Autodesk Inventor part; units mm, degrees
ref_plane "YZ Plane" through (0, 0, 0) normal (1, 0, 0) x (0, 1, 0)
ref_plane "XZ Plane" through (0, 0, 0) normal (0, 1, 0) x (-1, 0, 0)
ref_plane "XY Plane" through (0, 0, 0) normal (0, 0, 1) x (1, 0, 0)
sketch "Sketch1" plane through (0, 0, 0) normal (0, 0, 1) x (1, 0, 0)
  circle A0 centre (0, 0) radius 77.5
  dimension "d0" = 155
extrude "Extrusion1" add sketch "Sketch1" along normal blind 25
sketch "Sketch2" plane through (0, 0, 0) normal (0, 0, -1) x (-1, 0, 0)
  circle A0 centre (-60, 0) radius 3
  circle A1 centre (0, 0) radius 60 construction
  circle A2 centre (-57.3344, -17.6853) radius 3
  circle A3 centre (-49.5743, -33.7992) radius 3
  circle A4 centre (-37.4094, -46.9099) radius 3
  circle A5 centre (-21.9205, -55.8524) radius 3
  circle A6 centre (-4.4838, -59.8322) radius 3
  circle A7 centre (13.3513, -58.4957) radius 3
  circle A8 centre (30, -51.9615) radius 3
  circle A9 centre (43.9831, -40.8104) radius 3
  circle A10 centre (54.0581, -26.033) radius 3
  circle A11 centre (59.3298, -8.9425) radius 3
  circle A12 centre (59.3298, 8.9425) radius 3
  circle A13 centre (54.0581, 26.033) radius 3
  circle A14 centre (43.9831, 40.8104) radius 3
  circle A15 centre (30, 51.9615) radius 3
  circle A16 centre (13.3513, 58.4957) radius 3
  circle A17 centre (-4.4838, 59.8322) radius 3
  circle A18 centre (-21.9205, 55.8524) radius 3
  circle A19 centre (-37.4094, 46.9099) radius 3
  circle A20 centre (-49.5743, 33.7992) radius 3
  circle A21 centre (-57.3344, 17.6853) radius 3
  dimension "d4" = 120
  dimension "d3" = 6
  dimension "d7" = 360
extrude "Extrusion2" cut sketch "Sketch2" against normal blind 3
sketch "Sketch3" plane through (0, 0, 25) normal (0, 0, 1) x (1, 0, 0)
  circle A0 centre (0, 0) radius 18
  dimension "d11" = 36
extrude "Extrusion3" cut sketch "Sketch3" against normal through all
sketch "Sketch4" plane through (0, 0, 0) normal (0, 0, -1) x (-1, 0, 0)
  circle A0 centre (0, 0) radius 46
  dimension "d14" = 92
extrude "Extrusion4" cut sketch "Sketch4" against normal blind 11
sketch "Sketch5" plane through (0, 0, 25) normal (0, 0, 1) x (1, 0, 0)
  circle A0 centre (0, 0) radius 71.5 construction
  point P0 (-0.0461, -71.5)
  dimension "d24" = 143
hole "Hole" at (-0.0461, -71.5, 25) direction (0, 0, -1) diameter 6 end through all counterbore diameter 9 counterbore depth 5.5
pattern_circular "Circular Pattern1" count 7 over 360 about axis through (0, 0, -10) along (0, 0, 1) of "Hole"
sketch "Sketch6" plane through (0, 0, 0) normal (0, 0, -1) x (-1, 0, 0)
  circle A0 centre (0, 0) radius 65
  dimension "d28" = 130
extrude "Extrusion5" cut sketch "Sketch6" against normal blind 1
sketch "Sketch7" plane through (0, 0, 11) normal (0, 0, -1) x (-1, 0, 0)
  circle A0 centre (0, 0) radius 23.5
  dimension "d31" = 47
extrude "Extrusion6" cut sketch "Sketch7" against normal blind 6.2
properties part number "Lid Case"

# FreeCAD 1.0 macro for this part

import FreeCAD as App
import Part
import Sketcher

V = App.Vector

doc = App.newDocument("Part")
body = doc.addObject("PartDesign::Body", "Body")

# Sketch on XY plane
sketch1 = body.newObject("Sketcher::SketchObject", "Sketch")
sketch1.AttachmentSupport = (doc.getObject("XY_Plane"), [""])
sketch1.MapMode = "FlatFace"
sketch1.addGeometry(Part.Circle(V(0, 0, 0), V(0, 0, 1), 77.5), False)
sketch1.addConstraint([
    Sketcher.Constraint("Coincident", 0, 3, -1, 1),
    Sketcher.Constraint("Diameter", 0, 155.0),
])
pad1 = body.newObject("PartDesign::Pad", "Pad")
pad1.Profile = sketch1
pad1.Length = 25

# Sketch on XY plane
sketch2 = body.newObject("Sketcher::SketchObject", "Sketch001")
sketch2.AttachmentSupport = (doc.getObject("XY_Plane"), [""])
sketch2.MapMode = "FlatFace"
sketch2.addGeometry([
    Part.Circle(V(60, 0, 0), V(0, 0, 1), 3),  # 0
    Part.Circle(V(57.3344, -17.6853, 0), V(0, 0, 1), 3),  # 1
    Part.Circle(V(49.5743, -33.7992, 0), V(0, 0, 1), 3),  # 2
    Part.Circle(V(37.4094, -46.9099, 0), V(0, 0, 1), 3),  # 3
    Part.Circle(V(21.9205, -55.8524, 0), V(0, 0, 1), 3),  # 4
    Part.Circle(V(4.4838, -59.8322, 0), V(0, 0, 1), 3),  # 5
    Part.Circle(V(-13.3513, -58.4957, 0), V(0, 0, 1), 3),  # 6
    Part.Circle(V(-30, -51.9615, 0), V(0, 0, 1), 3),  # 7
    Part.Circle(V(-43.9831, -40.8104, 0), V(0, 0, 1), 3),  # 8
    Part.Circle(V(-54.0581, -26.033, 0), V(0, 0, 1), 3),  # 9
    Part.Circle(V(-59.3298, -8.9425, 0), V(0, 0, 1), 3),  # 10
    Part.Circle(V(-59.3298, 8.9425, 0), V(0, 0, 1), 3),  # 11
    Part.Circle(V(-54.0581, 26.033, 0), V(0, 0, 1), 3),  # 12
    Part.Circle(V(-43.9831, 40.8104, 0), V(0, 0, 1), 3),  # 13
    Part.Circle(V(-30, 51.9615, 0), V(0, 0, 1), 3),  # 14
    Part.Circle(V(-13.3513, 58.4957, 0), V(0, 0, 1), 3),  # 15
    Part.Circle(V(4.4838, 59.8322, 0), V(0, 0, 1), 3),  # 16
    Part.Circle(V(21.9205, 55.8524, 0), V(0, 0, 1), 3),  # 17
    Part.Circle(V(37.4094, 46.9099, 0), V(0, 0, 1), 3),  # 18
    Part.Circle(V(49.5743, 33.7992, 0), V(0, 0, 1), 3),  # 19
    Part.Circle(V(57.3344, 17.6853, 0), V(0, 0, 1), 3),  # 20
], False)
sketch2.addConstraint([
    Sketcher.Constraint("Equal", 0, 1),
    Sketcher.Constraint("Equal", 1, 2),
    Sketcher.Constraint("Equal", 2, 3),
    Sketcher.Constraint("Equal", 3, 4),
    Sketcher.Constraint("Equal", 4, 5),
    Sketcher.Constraint("Equal", 5, 6),
    Sketcher.Constraint("Equal", 6, 7),
    Sketcher.Constraint("Equal", 7, 8),
    Sketcher.Constraint("Equal", 8, 9),
    Sketcher.Constraint("Equal", 9, 10),
    Sketcher.Constraint("Equal", 10, 11),
    Sketcher.Constraint("Equal", 11, 12),
    Sketcher.Constraint("Equal", 12, 13),
    Sketcher.Constraint("Equal", 13, 14),
    Sketcher.Constraint("Equal", 14, 15),
    Sketcher.Constraint("Equal", 15, 16),
    Sketcher.Constraint("Equal", 16, 17),
    Sketcher.Constraint("Equal", 17, 18),
    Sketcher.Constraint("Equal", 18, 19),
    Sketcher.Constraint("Equal", 19, 20),
    Sketcher.Constraint("Symmetric", 10, 3, 11, 3, -1),
    Sketcher.Constraint("Symmetric", 9, 3, 12, 3, -1),
    Sketcher.Constraint("Symmetric", 8, 3, 13, 3, -1),
    Sketcher.Constraint("Symmetric", 7, 3, 14, 3, -1),
    Sketcher.Constraint("Symmetric", 6, 3, 15, 3, -1),
    Sketcher.Constraint("Symmetric", 5, 3, 16, 3, -1),
    Sketcher.Constraint("Symmetric", 4, 3, 17, 3, -1),
    Sketcher.Constraint("Symmetric", 3, 3, 18, 3, -1),
    Sketcher.Constraint("Symmetric", 2, 3, 19, 3, -1),
    Sketcher.Constraint("Symmetric", 1, 3, 20, 3, -1),
    Sketcher.Constraint("PointOnObject", 0, 3, -1),
    Sketcher.Constraint("Diameter", 0, 6.0),
    Sketcher.Constraint("DistanceX", -1, 1, 0, 3, 60.0),
    Sketcher.Constraint("DistanceX", 7, 3, -1, 1, 30.0),
    Sketcher.Constraint("DistanceY", 3, 3, -1, 1, 46.91),
    Sketcher.Constraint("DistanceX", 2, 3, 1, 3, 7.76),
    Sketcher.Constraint("DistanceX", 8, 3, -1, 1, 43.983),
    Sketcher.Constraint("DistanceX", 9, 3, -1, 1, 54.058),
    Sketcher.Constraint("DistanceY", 9, 3, -1, 1, 26.033),
    Sketcher.Constraint("DistanceY", 2, 3, 1, 3, 16.114),
    Sketcher.Constraint("DistanceX", 3, 3, 2, 3, 12.165),
    Sketcher.Constraint("DistanceX", 4, 3, 3, 3, 15.489),
    Sketcher.Constraint("DistanceY", 4, 3, 1, 3, 38.167),
    Sketcher.Constraint("DistanceY", 5, 3, 2, 3, 26.033),
    Sketcher.Constraint("DistanceX", 6, 3, 5, 3, 17.835),
    Sketcher.Constraint("DistanceY", 4, 3, 7, 3, 3.891),
    Sketcher.Constraint("DistanceY", 7, 3, 8, 3, 11.151),
    Sketcher.Constraint("DistanceX", 8, 3, 5, 3, 48.467),
    Sketcher.Constraint("DistanceY", 8, 3, 10, 3, 31.868),
    Sketcher.Constraint("DistanceY", 10, 3, 11, 3, 17.885),
    Sketcher.Constraint("DistanceX", -1, 1, 1, 3, 57.3344),
    Sketcher.Constraint("DistanceY", 6, 3, -1, 1, 58.4957),
    Sketcher.Constraint("DistanceX", 10, 3, -1, 1, 59.3298),
])
pocket1 = body.newObject("PartDesign::Pocket", "Pocket")
pocket1.Profile = sketch2
pocket1.Length = 3
pocket1.Reversed = True

# Sketch on XY plane
sketch3 = body.newObject("Sketcher::SketchObject", "Sketch002")
sketch3.AttachmentSupport = (doc.getObject("XY_Plane"), [""])
sketch3.MapMode = "FlatFace"
sketch3.AttachmentOffset = App.Placement(V(0, 0, 25), App.Rotation())
sketch3.addGeometry(Part.Circle(V(0, 0, 0), V(0, 0, 1), 18), False)
sketch3.addConstraint([
    Sketcher.Constraint("Coincident", 0, 3, -1, 1),
    Sketcher.Constraint("Diameter", 0, 36.0),
])
pocket2 = body.newObject("PartDesign::Pocket", "Pocket001")
pocket2.Profile = sketch3
pocket2.Type = "ThroughAll"

# Sketch on XY plane
sketch4 = body.newObject("Sketcher::SketchObject", "Sketch003")
sketch4.AttachmentSupport = (doc.getObject("XY_Plane"), [""])
sketch4.MapMode = "FlatFace"
sketch4.addGeometry(Part.Circle(V(0, 0, 0), V(0, 0, 1), 46), False)
sketch4.addConstraint([
    Sketcher.Constraint("Coincident", 0, 3, -1, 1),
    Sketcher.Constraint("Diameter", 0, 92.0),
])
pocket3 = body.newObject("PartDesign::Pocket", "Pocket002")
pocket3.Profile = sketch4
pocket3.Length = 11
pocket3.Reversed = True

# Sketch on XY plane
sketch5 = body.newObject("Sketcher::SketchObject", "Sketch004")
sketch5.AttachmentSupport = (doc.getObject("XY_Plane"), [""])
sketch5.MapMode = "FlatFace"
sketch5.AttachmentOffset = App.Placement(V(0, 0, 25), App.Rotation())
sketch5.addGeometry(Part.Circle(V(-0.0461, -71.5, 0), V(0, 0, 1), 3), False)
sketch5.addConstraint([
    Sketcher.Constraint("Diameter", 0, 6.0),
    Sketcher.Constraint("DistanceY", 0, 3, -1, 1, 71.5),
    Sketcher.Constraint("DistanceX", 0, 3, -1, 1, 0.046),
])
doc.recompute()
hole = body.newObject("PartDesign::Hole", "Hole")
hole.Profile = sketch5
hole.ThreadType = "None"
hole.Diameter = 6
hole.DepthType = "ThroughAll"
hole.HoleCutType = "Counterbore"
hole.HoleCutDiameter = 9
hole.HoleCutDepth = 5.5
doc.recompute()

polarpattern = body.newObject("PartDesign::PolarPattern", "PolarPattern")
polarpattern.Originals = [hole]
polarpattern.Axis = (doc.getObject("Z_Axis"), [""])
polarpattern.Angle = 360
polarpattern.Occurrences = 7
body.Tip = polarpattern

# Sketch on XY plane
sketch6 = body.newObject("Sketcher::SketchObject", "Sketch005")
sketch6.AttachmentSupport = (doc.getObject("XY_Plane"), [""])
sketch6.MapMode = "FlatFace"
sketch6.addGeometry(Part.Circle(V(0, 0, 0), V(0, 0, 1), 65), False)
sketch6.addConstraint([
    Sketcher.Constraint("Coincident", 0, 3, -1, 1),
    Sketcher.Constraint("Diameter", 0, 130.0),
])
pocket4 = body.newObject("PartDesign::Pocket", "Pocket003")
pocket4.Profile = sketch6
pocket4.Length = 1
pocket4.Reversed = True

# Sketch on XY plane
sketch7 = body.newObject("Sketcher::SketchObject", "Sketch006")
sketch7.AttachmentSupport = (doc.getObject("XY_Plane"), [""])
sketch7.MapMode = "FlatFace"
sketch7.AttachmentOffset = App.Placement(V(0, 0, 11), App.Rotation())
sketch7.addGeometry(Part.Circle(V(0, 0, 0), V(0, 0, 1), 23.5), False)
sketch7.addConstraint([
    Sketcher.Constraint("Coincident", 0, 3, -1, 1),
    Sketcher.Constraint("Diameter", 0, 47.0),
])
pocket5 = body.newObject("PartDesign::Pocket", "Pocket004")
pocket5.Profile = sketch7
pocket5.Length = 6.2
pocket5.Reversed = True

doc.recompute()
